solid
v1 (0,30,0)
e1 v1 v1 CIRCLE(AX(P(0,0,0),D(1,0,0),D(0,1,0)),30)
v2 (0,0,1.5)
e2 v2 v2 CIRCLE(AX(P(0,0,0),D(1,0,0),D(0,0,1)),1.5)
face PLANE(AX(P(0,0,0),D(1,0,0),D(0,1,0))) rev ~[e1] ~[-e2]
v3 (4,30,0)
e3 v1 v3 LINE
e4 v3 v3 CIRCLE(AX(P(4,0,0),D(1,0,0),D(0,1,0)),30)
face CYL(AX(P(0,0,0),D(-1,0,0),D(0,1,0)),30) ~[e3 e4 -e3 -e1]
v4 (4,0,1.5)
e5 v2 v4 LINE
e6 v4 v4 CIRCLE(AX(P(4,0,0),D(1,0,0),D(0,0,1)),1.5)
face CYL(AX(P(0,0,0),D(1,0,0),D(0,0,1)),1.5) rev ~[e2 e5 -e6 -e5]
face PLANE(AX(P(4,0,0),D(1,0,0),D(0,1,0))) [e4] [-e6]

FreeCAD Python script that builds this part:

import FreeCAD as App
import Part
import Sketcher
Q = App.Units.Quantity

doc = App.newDocument("Part")
body = doc.addObject("PartDesign::Body", "Body")

# Sketch on YZ plane
sketch1 = body.newObject("Sketcher::SketchObject", "Sketch")
sketch1.AttachmentSupport = (doc.getObject("YZ_Plane"), [""])
sketch1.MapMode = "FlatFace"
sketch1.addGeometry(Part.Circle(App.Vector(0, 0, 0), App.Vector(0, 0, 1), 30), False)
sketch1.addConstraint(Sketcher.Constraint("Coincident", 0, 3, -1, 1))
sketch1.addConstraint(Sketcher.Constraint("Diameter", 0, Q("60 mm")))
pad1 = body.newObject("PartDesign::Pad", "Pad")
pad1.Profile = sketch1
pad1.Length = 4

# Sketch on YZ plane
sketch2 = body.newObject("Sketcher::SketchObject", "Sketch001")
sketch2.AttachmentSupport = (doc.getObject("YZ_Plane"), [""])
sketch2.MapMode = "FlatFace"
sketch2.addGeometry(Part.Circle(App.Vector(0, 0, 0), App.Vector(0, 0, 1), 1.5), False)
sketch2.addConstraint(Sketcher.Constraint("Coincident", 0, 3, -1, 1))
sketch2.addConstraint(Sketcher.Constraint("Diameter", 0, Q("3 mm")))
doc.recompute()
hole = body.newObject("PartDesign::Hole", "Hole")
hole.Profile = sketch2
hole.ThreadType = "None"
hole.Diameter = 3
hole.DepthType = "ThroughAll"
hole.Reversed = True

doc.recompute()
